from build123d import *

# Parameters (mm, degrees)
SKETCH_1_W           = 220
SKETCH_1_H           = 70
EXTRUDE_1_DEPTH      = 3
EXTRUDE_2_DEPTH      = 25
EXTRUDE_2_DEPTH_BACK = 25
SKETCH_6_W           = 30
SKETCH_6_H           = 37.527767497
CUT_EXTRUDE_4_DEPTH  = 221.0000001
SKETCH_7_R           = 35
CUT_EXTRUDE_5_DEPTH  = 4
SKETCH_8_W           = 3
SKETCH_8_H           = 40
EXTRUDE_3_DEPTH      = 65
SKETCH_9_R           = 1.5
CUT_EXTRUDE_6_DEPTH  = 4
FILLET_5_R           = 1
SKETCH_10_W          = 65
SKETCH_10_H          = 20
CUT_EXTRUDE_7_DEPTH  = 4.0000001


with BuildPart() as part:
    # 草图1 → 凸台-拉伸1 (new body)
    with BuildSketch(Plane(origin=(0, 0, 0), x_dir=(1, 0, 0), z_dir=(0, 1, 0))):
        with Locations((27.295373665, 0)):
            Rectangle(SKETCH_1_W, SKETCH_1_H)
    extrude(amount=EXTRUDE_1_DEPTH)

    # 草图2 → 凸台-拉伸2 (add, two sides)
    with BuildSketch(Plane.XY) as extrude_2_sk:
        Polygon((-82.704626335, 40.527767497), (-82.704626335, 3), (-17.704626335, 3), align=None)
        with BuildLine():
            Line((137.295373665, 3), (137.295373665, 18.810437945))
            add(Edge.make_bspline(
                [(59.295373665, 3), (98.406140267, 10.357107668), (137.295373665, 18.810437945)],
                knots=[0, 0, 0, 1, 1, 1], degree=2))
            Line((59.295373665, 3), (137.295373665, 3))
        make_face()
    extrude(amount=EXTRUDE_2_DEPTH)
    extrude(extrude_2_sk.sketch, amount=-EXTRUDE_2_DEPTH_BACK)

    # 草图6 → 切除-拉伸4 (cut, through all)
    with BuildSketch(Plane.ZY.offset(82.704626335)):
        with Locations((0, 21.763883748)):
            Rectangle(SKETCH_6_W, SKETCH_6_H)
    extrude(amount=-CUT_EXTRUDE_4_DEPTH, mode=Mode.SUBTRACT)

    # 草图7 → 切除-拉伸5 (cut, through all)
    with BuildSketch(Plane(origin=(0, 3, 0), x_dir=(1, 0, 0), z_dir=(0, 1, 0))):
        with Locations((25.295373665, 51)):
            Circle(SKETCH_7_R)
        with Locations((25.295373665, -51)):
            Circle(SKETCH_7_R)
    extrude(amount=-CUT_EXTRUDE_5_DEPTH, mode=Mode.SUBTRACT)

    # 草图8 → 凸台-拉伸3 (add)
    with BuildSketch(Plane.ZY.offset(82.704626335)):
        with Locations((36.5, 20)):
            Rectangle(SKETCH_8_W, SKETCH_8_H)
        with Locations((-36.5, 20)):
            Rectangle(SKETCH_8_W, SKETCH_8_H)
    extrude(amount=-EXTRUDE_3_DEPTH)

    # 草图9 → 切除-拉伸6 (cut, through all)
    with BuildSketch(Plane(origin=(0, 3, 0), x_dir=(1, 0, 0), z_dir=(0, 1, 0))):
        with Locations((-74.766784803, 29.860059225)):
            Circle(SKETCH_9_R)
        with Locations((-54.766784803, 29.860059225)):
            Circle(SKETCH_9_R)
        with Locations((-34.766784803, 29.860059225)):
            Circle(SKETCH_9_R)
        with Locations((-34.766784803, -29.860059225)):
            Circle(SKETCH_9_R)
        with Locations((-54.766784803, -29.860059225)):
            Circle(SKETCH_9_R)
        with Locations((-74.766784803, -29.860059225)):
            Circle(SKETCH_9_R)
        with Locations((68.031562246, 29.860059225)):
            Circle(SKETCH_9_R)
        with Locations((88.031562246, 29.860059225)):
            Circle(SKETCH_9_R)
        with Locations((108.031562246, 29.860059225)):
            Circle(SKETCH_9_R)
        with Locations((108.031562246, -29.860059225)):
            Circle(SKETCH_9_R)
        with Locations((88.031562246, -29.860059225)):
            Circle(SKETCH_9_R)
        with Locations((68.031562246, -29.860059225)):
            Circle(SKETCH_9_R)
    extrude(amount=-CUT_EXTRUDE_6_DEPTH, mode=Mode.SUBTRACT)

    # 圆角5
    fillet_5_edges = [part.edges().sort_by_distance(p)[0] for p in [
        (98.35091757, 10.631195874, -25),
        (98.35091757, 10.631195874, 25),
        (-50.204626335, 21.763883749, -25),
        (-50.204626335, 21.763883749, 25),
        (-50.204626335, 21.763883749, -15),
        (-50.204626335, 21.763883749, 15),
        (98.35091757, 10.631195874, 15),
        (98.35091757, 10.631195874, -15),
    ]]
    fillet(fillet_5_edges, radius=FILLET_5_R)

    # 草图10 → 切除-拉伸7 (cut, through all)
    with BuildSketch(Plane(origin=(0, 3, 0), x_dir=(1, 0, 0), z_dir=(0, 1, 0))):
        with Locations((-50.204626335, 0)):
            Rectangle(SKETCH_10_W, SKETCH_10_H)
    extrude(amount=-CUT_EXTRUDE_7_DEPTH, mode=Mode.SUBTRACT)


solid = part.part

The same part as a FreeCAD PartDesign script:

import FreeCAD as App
import Part
import Sketcher

V = App.Vector
Q = App.Units.Quantity


def edges_at(feature, points):
    """Names of the edges that pass closest to the given points."""
    edges = feature.Shape.Edges
    near = lambda p: min(range(len(edges)), key=lambda i: edges[i].distToShape(Part.Vertex(*p))[0])
    return sorted({f"Edge{near(p) + 1}" for p in points})

doc = App.newDocument("Part")
params = doc.addObject("Spreadsheet::Sheet", "Params")
for row, (alias, value) in enumerate([
    ("sketch1_width", "220 mm"),
    ("sketch1_height", "70 mm"),
    ("pad1_length", "3 mm"),
    ("sketch2_width", "65 mm"),
    ("pad2_length", "25 mm"),
    ("pad2_length2", "25 mm"),
    ("sketch3_height", "30 mm"),
    ("sketch4_diameter", "70 mm"),
    ("sketch5_width", "40 mm"),
    ("sketch5_height", "3 mm"),
    ("pad3_length", "65 mm"),
    ("sketch6_diameter", "3 mm"),
    ("fillet_radius", "1 mm"),
    ("sketch7_width", "65 mm"),
    ("sketch7_height", "20 mm"),
], start=1):
    params.set(f"A{row}", alias)
    params.set(f"B{row}", "=" + value)
    params.setAlias(f"B{row}", alias)

body = doc.addObject("PartDesign::Body", "Body")

# Sketch on XZ plane
sketch1 = body.newObject("Sketcher::SketchObject", "Sketch")
sketch1.AttachmentSupport = (doc.getObject("XZ_Plane"), [""])
sketch1.MapMode = "FlatFace"
sketch1.addGeometry([
    Part.LineSegment(V(-83, -35, 0), V(-83, 35, 0)),
    Part.LineSegment(V(-83, 35, 0), V(137, 35, 0)),
    Part.LineSegment(V(137, 35, 0), V(137, -35, 0)),
    Part.LineSegment(V(137, -35, 0), V(-83, -35, 0)),
], False)
sketch1.addConstraint([
    Sketcher.Constraint("Coincident", 0, 2, 1, 1),
    Sketcher.Constraint("Coincident", 1, 2, 2, 1),
    Sketcher.Constraint("Coincident", 2, 2, 3, 1),
    Sketcher.Constraint("Coincident", 3, 2, 0, 1),
    Sketcher.Constraint("Vertical", 0),
    Sketcher.Constraint("Horizontal", 1),
    Sketcher.Constraint("Vertical", 2),
    Sketcher.Constraint("Horizontal", 3),
    Sketcher.Constraint("DistanceX", 1, 1, 1, 2, 220.0),
    Sketcher.Constraint("DistanceY", 0, 1, 0, 2, 70.0),
    Sketcher.Constraint("DistanceY", -1, 1, 0, 2, 35.0),
    Sketcher.Constraint("DistanceX", 0, 2, -1, 1, 82.704626),
])
sketch1.setExpression("Constraints[8]", "Params.sketch1_width")
sketch1.setExpression("Constraints[9]", "Params.sketch1_height")
pad1 = body.newObject("PartDesign::Pad", "Pad")
pad1.Profile = sketch1
pad1.setExpression("Length", "Params.pad1_length")
pad1.Reversed = True

# Sketch on XY plane
sketch2 = body.newObject("Sketcher::SketchObject", "Sketch001")
sketch2.AttachmentSupport = (doc.getObject("XY_Plane"), [""])
sketch2.MapMode = "FlatFace"
sketch2.addGeometry([
    Part.LineSegment(V(-82.704626, 40.527767, 0), V(-82.704626, 3, 0)),  # 0
    Part.LineSegment(V(-82.704626, 3, 0), V(-17.704626, 3, 0)),  # 1
    Part.LineSegment(V(-17.704626, 3, 0), V(-82.704626, 40.527767, 0)),  # 2
    Part.LineSegment(V(137.295374, 3, 0), V(137.295374, 18.810438, 0)),  # 3
    Part.BSplineCurve([V(59.295374, 3, 0), V(98.40614, 10.357108, 0), V(137.295374, 18.810438, 0)], [3, 3], [0, 1], False, 2, [1, 1, 1], False),  # 4
    Part.LineSegment(V(59.295374, 3, 0), V(137.295374, 3, 0)),  # 5
], False)
sketch2.addConstraint([
    Sketcher.Constraint("Block", 4),
    Sketcher.Constraint("Coincident", 0, 2, 1, 1),
    Sketcher.Constraint("Coincident", 1, 2, 2, 1),
    Sketcher.Constraint("Coincident", 2, 2, 0, 1),
    Sketcher.Constraint("Coincident", 3, 2, 4, 2),
    Sketcher.Constraint("Coincident", 4, 1, 5, 1),
    Sketcher.Constraint("Coincident", 5, 2, 3, 1),
    Sketcher.Constraint("Vertical", 0),
    Sketcher.Constraint("Horizontal", 1),
    Sketcher.Constraint("Vertical", 3),
    Sketcher.Constraint("Horizontal", 5),
    Sketcher.Constraint("Horizontal", 1, 2, 5, 2),
    Sketcher.Constraint("DistanceX", 1, 1, 1, 2, 65.0),
    Sketcher.Constraint("Angle", 2, Q("150 deg")),
    Sketcher.Constraint("DistanceX", 1, 2, 3, 2, 155.0),
])
sketch2.setExpression("Constraints[12]", "Params.sketch2_width")
pad2 = body.newObject("PartDesign::Pad", "Pad001")
pad2.Profile = sketch2
pad2.Type = "TwoLengths"
pad2.setExpression("Length", "Params.pad2_length")
pad2.setExpression("Length2", "Params.pad2_length2")

# Sketch on YZ plane
sketch3 = body.newObject("Sketcher::SketchObject", "Sketch002")
sketch3.AttachmentSupport = (doc.getObject("YZ_Plane"), [""])
sketch3.MapMode = "FlatFace"
sketch3.AttachmentOffset = App.Placement(V(0, 0, -82.704626), App.Rotation())
sketch3.addGeometry([
    Part.LineSegment(V(41, -15, 0), V(3, -15, 0)),
    Part.LineSegment(V(3, -15, 0), V(3, 15, 0)),
    Part.LineSegment(V(3, 15, 0), V(41, 15, 0)),
    Part.LineSegment(V(41, 15, 0), V(41, -15, 0)),
], False)
sketch3.addConstraint([
    Sketcher.Constraint("Coincident", 0, 2, 1, 1),
    Sketcher.Constraint("Coincident", 1, 2, 2, 1),
    Sketcher.Constraint("Coincident", 2, 2, 3, 1),
    Sketcher.Constraint("Coincident", 3, 2, 0, 1),
    Sketcher.Constraint("Horizontal", 0),
    Sketcher.Constraint("Vertical", 1),
    Sketcher.Constraint("Horizontal", 2),
    Sketcher.Constraint("Vertical", 3),
    Sketcher.Constraint("DistanceY", 1, 1, 1, 2, 30.0),
    Sketcher.Constraint("DistanceX", -1, 1, 0, 2, 3.0),
    Sketcher.Constraint("DistanceY", 0, 2, -1, 1, 15.0),
    Sketcher.Constraint("DistanceX", 0, 2, 0, 1, 37.527767),
])
sketch3.setExpression("Constraints[8]", "Params.sketch3_height")
pocket1 = body.newObject("PartDesign::Pocket", "Pocket")
pocket1.Profile = sketch3
pocket1.Type = "ThroughAll"
pocket1.Reversed = True

# Sketch on XZ plane
sketch4 = body.newObject("Sketcher::SketchObject", "Sketch003")
sketch4.AttachmentSupport = (doc.getObject("XZ_Plane"), [""])
sketch4.MapMode = "FlatFace"
sketch4.AttachmentOffset = App.Placement(V(0, 0, -3), App.Rotation())
sketch4.addGeometry([
    Part.Circle(V(25, -51, 0), V(0, 0, 1), 35),
    Part.Circle(V(25, 51, 0), V(0, 0, 1), 35),
], False)
sketch4.addConstraint([
    Sketcher.Constraint("Equal", 0, 1),
    Sketcher.Constraint("Symmetric", 0, 3, 1, 3, -1),
    Sketcher.Constraint("Diameter", 0, 70.0),
    Sketcher.Constraint("DistanceY", 0, 3, -1, 1, 51.0),
    Sketcher.Constraint("DistanceX", -1, 1, 0, 3, 25.295374),
])
sketch4.setExpression("Constraints[2]", "Params.sketch4_diameter")
pocket2 = body.newObject("PartDesign::Pocket", "Pocket001")
pocket2.Profile = sketch4
pocket2.Type = "ThroughAll"
pocket2.Reversed = True

# Sketch on YZ plane
sketch5 = body.newObject("Sketcher::SketchObject", "Sketch004")
sketch5.AttachmentSupport = (doc.getObject("YZ_Plane"), [""])
sketch5.MapMode = "FlatFace"
sketch5.AttachmentOffset = App.Placement(V(0, 0, -82.704626), App.Rotation())
sketch5.addGeometry([
    Part.LineSegment(V(40, 35, 0), V(0, 35, 0)),  # 0
    Part.LineSegment(V(0, 35, 0), V(0, 38, 0)),  # 1
    Part.LineSegment(V(0, 38, 0), V(40, 38, 0)),  # 2
    Part.LineSegment(V(40, 38, 0), V(40, 35, 0)),  # 3
    Part.LineSegment(V(40, -38, 0), V(0, -38, 0)),  # 4
    Part.LineSegment(V(0, -38, 0), V(0, -35, 0)),  # 5
    Part.LineSegment(V(0, -35, 0), V(40, -35, 0)),  # 6
    Part.LineSegment(V(40, -35, 0), V(40, -38, 0)),  # 7
], False)
sketch5.addConstraint([
    Sketcher.Constraint("Coincident", 0, 2, 1, 1),
    Sketcher.Constraint("Coincident", 1, 2, 2, 1),
    Sketcher.Constraint("Coincident", 2, 2, 3, 1),
    Sketcher.Constraint("Coincident", 3, 2, 0, 1),
    Sketcher.Constraint("Coincident", 4, 2, 5, 1),
    Sketcher.Constraint("Coincident", 5, 2, 6, 1),
    Sketcher.Constraint("Coincident", 6, 2, 7, 1),
    Sketcher.Constraint("Coincident", 7, 2, 4, 1),
    Sketcher.Constraint("Horizontal", 0),
    Sketcher.Constraint("Vertical", 1),
    Sketcher.Constraint("Horizontal", 2),
    Sketcher.Constraint("Vertical", 3),
    Sketcher.Constraint("Horizontal", 4),
    Sketcher.Constraint("Vertical", 5),
    Sketcher.Constraint("Horizontal", 6),
    Sketcher.Constraint("Vertical", 7),
    Sketcher.Constraint("Symmetric", 1, 2, 4, 2, -1, 1),
    Sketcher.Constraint("Symmetric", 0, 2, 5, 2, -1),
    Sketcher.Constraint("Vertical", 3, 2, 6, 2),
    Sketcher.Constraint("DistanceX", 0, 2, 0, 1, 40.0),
    Sketcher.Constraint("DistanceY", 1, 1, 1, 2, 3.0),
    Sketcher.Constraint("DistanceY", -1, 1, 0, 2, 35.0),
])
sketch5.setExpression("Constraints[19]", "Params.sketch5_width")
sketch5.setExpression("Constraints[20]", "Params.sketch5_height")
pad3 = body.newObject("PartDesign::Pad", "Pad002")
pad3.Profile = sketch5
pad3.setExpression("Length", "Params.pad3_length")

# Sketch on XZ plane
sketch6 = body.newObject("Sketcher::SketchObject", "Sketch005")
sketch6.AttachmentSupport = (doc.getObject("XZ_Plane"), [""])
sketch6.MapMode = "FlatFace"
sketch6.AttachmentOffset = App.Placement(V(0, 0, -3), App.Rotation())
sketch6.addGeometry([
    Part.Circle(V(-74.8, -29.9, 0), V(0, 0, 1), 1.5),  # 0
    Part.Circle(V(-54.8, -29.9, 0), V(0, 0, 1), 1.5),  # 1
    Part.Circle(V(-34.8, -29.9, 0), V(0, 0, 1), 1.5),  # 2
    Part.Circle(V(-34.8, 29.9, 0), V(0, 0, 1), 1.5),  # 3
    Part.Circle(V(-54.8, 29.9, 0), V(0, 0, 1), 1.5),  # 4
    Part.Circle(V(-74.8, 29.9, 0), V(0, 0, 1), 1.5),  # 5
    Part.Circle(V(68, -29.9, 0), V(0, 0, 1), 1.5),  # 6
    Part.Circle(V(88, -29.9, 0), V(0, 0, 1), 1.5),  # 7
    Part.Circle(V(108, -29.9, 0), V(0, 0, 1), 1.5),  # 8
    Part.Circle(V(108, 29.9, 0), V(0, 0, 1), 1.5),  # 9
    Part.Circle(V(88, 29.9, 0), V(0, 0, 1), 1.5),  # 10
    Part.Circle(V(68, 29.9, 0), V(0, 0, 1), 1.5),  # 11
], False)
sketch6.addConstraint([
    Sketcher.Constraint("Equal", 0, 1),
    Sketcher.Constraint("Equal", 1, 2),
    Sketcher.Constraint("Equal", 2, 3),
    Sketcher.Constraint("Equal", 3, 4),
    Sketcher.Constraint("Equal", 4, 5),
    Sketcher.Constraint("Equal", 5, 6),
    Sketcher.Constraint("Equal", 6, 7),
    Sketcher.Constraint("Equal", 7, 8),
    Sketcher.Constraint("Equal", 8, 9),
    Sketcher.Constraint("Equal", 9, 10),
    Sketcher.Constraint("Equal", 10, 11),
    Sketcher.Constraint("Symmetric", 2, 3, 3, 3, -1),
    Sketcher.Constraint("Symmetric", 1, 3, 4, 3, -1),
    Sketcher.Constraint("Symmetric", 0, 3, 5, 3, -1),
    Sketcher.Constraint("Symmetric", 8, 3, 9, 3, -1),
    Sketcher.Constraint("Symmetric", 7, 3, 10, 3, -1),
    Sketcher.Constraint("Symmetric", 6, 3, 11, 3, -1),
    Sketcher.Constraint("Horizontal", 0, 3, 1, 3),
    Sketcher.Constraint("Horizontal", 1, 3, 2, 3),
    Sketcher.Constraint("Horizontal", 2, 3, 6, 3),
    Sketcher.Constraint("Horizontal", 6, 3, 7, 3),
    Sketcher.Constraint("Horizontal", 7, 3, 8, 3),
    Sketcher.Constraint("Diameter", 0, 3.0),
    Sketcher.Constraint("DistanceX", 0, 3, 1, 3, 20.0),
    Sketcher.Constraint("DistanceX", 1, 3, 2, 3, 20.0),
    Sketcher.Constraint("DistanceX", 6, 3, 7, 3, 20.0),
    Sketcher.Constraint("DistanceX", 7, 3, 8, 3, 20.0),
    Sketcher.Constraint("DistanceY", 0, 3, -1, 1, 29.860059),
    Sketcher.Constraint("DistanceX", 0, 3, -1, 1, 74.766785),
    Sketcher.Constraint("DistanceX", -1, 1, 6, 3, 68.031562),
])
sketch6.setExpression("Constraints[22]", "Params.sketch6_diameter")
pocket3 = body.newObject("PartDesign::Pocket", "Pocket002")
pocket3.Profile = sketch6
pocket3.Type = "ThroughAll"
pocket3.Reversed = True
doc.recompute()

fillet = body.newObject("PartDesign::Fillet", "Fillet")
fillet.Base = (pocket3, edges_at(pocket3, [
    (98.351, 10.631, -25),
    (98.351, 10.631, 25),
    (-50.205, 21.764, -25),
    (-50.205, 21.764, 25),
    (-50.205, 21.764, -15),
    (-50.205, 21.764, 15),
    (98.351, 10.631, 15),
    (98.351, 10.631, -15),
]))
fillet.setExpression("Radius", "Params.fillet_radius")

# Sketch on XZ plane
sketch7 = body.newObject("Sketcher::SketchObject", "Sketch006")
sketch7.AttachmentSupport = (doc.getObject("XZ_Plane"), [""])
sketch7.MapMode = "FlatFace"
sketch7.AttachmentOffset = App.Placement(V(0, 0, -3), App.Rotation())
sketch7.addGeometry([
    Part.LineSegment(V(-83, -10, 0), V(-83, 10, 0)),
    Part.LineSegment(V(-83, 10, 0), V(-18, 10, 0)),
    Part.LineSegment(V(-18, 10, 0), V(-18, -10, 0)),
    Part.LineSegment(V(-18, -10, 0), V(-83, -10, 0)),
], False)
sketch7.addConstraint([
    Sketcher.Constraint("Coincident", 0, 2, 1, 1),
    Sketcher.Constraint("Coincident", 1, 2, 2, 1),
    Sketcher.Constraint("Coincident", 2, 2, 3, 1),
    Sketcher.Constraint("Coincident", 3, 2, 0, 1),
    Sketcher.Constraint("Vertical", 0),
    Sketcher.Constraint("Horizontal", 1),
    Sketcher.Constraint("Vertical", 2),
    Sketcher.Constraint("Horizontal", 3),
    Sketcher.Constraint("DistanceX", 1, 1, 1, 2, 65.0),
    Sketcher.Constraint("DistanceY", 0, 1, 0, 2, 20.0),
    Sketcher.Constraint("DistanceY", -1, 1, 0, 2, 10.0),
    Sketcher.Constraint("DistanceX", 0, 2, -1, 1, 82.704626),
])
sketch7.setExpression("Constraints[8]", "Params.sketch7_width")
sketch7.setExpression("Constraints[9]", "Params.sketch7_height")
pocket4 = body.newObject("PartDesign::Pocket", "Pocket003")
pocket4.Profile = sketch7
pocket4.Type = "ThroughAll"
pocket4.Reversed = True

doc.recompute()
